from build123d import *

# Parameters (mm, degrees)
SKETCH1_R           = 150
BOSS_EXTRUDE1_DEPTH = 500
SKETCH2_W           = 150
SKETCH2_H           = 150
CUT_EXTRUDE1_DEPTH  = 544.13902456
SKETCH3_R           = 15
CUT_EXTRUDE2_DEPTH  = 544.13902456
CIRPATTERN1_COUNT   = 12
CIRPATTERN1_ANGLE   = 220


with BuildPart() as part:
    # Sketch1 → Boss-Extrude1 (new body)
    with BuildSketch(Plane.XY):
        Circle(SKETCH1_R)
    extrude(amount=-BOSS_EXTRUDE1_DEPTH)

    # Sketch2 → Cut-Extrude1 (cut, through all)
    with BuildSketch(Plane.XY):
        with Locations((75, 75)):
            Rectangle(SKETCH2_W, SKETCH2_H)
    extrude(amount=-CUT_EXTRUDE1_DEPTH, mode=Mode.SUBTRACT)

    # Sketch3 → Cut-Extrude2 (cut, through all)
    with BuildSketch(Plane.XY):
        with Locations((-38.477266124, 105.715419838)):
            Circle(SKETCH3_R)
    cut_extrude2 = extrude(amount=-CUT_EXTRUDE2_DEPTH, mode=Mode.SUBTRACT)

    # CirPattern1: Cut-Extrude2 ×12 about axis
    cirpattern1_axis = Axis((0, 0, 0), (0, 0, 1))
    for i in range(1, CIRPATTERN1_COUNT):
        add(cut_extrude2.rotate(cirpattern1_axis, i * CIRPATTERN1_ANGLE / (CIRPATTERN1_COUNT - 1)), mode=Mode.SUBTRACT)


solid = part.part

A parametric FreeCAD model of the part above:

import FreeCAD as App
import Part
import Sketcher

V = App.Vector
Q = App.Units.Quantity

doc = App.newDocument("Part")
body = doc.addObject("PartDesign::Body", "Body")

# Sketch on XY plane
sketch1 = doc.addObject("Sketcher::SketchObject", "Sketch")
body.addObject(sketch1)
sketch1.AttachmentSupport = (doc.XY_Plane, [""])
sketch1.MapMode = "FlatFace"
sketch1.addGeometry(Part.Circle(V(0, 0, 0), V(0, 0, 1), 150), False)
sketch1.addConstraint(Sketcher.Constraint("Coincident", 0, 3, -1, 1))
sketch1.addConstraint(Sketcher.Constraint("Diameter", 0, Q("300 mm")))
pad1 = doc.addObject("PartDesign::Pad", "Pad")
body.addObject(pad1)
pad1.Profile = sketch1
pad1.Length = 500
pad1.Reversed = True

# Sketch on XY plane
sketch2 = doc.addObject("Sketcher::SketchObject", "Sketch001")
body.addObject(sketch2)
sketch2.AttachmentSupport = (doc.XY_Plane, [""])
sketch2.MapMode = "FlatFace"
sketch2.addGeometry(Part.LineSegment(V(0, 150, 0), V(0, 0, 0)), False)
sketch2.addGeometry(Part.LineSegment(V(0, 0, 0), V(150, 0, 0)), False)
sketch2.addGeometry(Part.LineSegment(V(150, 0, 0), V(150, 150, 0)), False)
sketch2.addGeometry(Part.LineSegment(V(150, 150, 0), V(0, 150, 0)), False)
sketch2.addConstraint(Sketcher.Constraint("Coincident", 0, 2, 1, 1))
sketch2.addConstraint(Sketcher.Constraint("Coincident", 1, 2, 2, 1))
sketch2.addConstraint(Sketcher.Constraint("Coincident", 2, 2, 3, 1))
sketch2.addConstraint(Sketcher.Constraint("Coincident", 3, 2, 0, 1))
sketch2.addConstraint(Sketcher.Constraint("Vertical", 0))
sketch2.addConstraint(Sketcher.Constraint("Horizontal", 1))
sketch2.addConstraint(Sketcher.Constraint("Vertical", 2))
sketch2.addConstraint(Sketcher.Constraint("Horizontal", 3))
sketch2.addConstraint(Sketcher.Constraint("Coincident", 0, 2, -1, 1))
sketch2.addConstraint(Sketcher.Constraint("Equal", 3, 0))
sketch2.addConstraint(Sketcher.Constraint("DistanceX", 1, 1, 1, 2, Q("150 mm")))
pocket1 = doc.addObject("PartDesign::Pocket", "Pocket")
body.addObject(pocket1)
pocket1.Profile = sketch2
pocket1.Type = "ThroughAll"

# Sketch on XY plane
sketch3 = doc.addObject("Sketcher::SketchObject", "Sketch002")
body.addObject(sketch3)
sketch3.AttachmentSupport = (doc.XY_Plane, [""])
sketch3.MapMode = "FlatFace"
sketch3.addGeometry(Part.Circle(V(-38, 106, 0), V(0, 0, 1), 15), False)
sketch3.addConstraint(Sketcher.Constraint("Diameter", 0, Q("30 mm")))
sketch3.addConstraint(Sketcher.Constraint("DistanceY", -1, 1, 0, 3, Q("105.71542 mm")))
sketch3.addConstraint(Sketcher.Constraint("DistanceX", 0, 3, -1, 1, Q("38.477266 mm")))
pocket2 = doc.addObject("PartDesign::Pocket", "Pocket001")
body.addObject(pocket2)
pocket2.Profile = sketch3
pocket2.Type = "ThroughAll"
doc.recompute()

polarpattern = doc.addObject("PartDesign::PolarPattern", "PolarPattern")
body.addObject(polarpattern)
polarpattern.Originals = [pocket2]
polarpattern.Axis = (doc.Z_Axis, [""])
polarpattern.Angle = 220
polarpattern.Occurrences = 12
body.Tip = polarpattern

doc.recompute()
